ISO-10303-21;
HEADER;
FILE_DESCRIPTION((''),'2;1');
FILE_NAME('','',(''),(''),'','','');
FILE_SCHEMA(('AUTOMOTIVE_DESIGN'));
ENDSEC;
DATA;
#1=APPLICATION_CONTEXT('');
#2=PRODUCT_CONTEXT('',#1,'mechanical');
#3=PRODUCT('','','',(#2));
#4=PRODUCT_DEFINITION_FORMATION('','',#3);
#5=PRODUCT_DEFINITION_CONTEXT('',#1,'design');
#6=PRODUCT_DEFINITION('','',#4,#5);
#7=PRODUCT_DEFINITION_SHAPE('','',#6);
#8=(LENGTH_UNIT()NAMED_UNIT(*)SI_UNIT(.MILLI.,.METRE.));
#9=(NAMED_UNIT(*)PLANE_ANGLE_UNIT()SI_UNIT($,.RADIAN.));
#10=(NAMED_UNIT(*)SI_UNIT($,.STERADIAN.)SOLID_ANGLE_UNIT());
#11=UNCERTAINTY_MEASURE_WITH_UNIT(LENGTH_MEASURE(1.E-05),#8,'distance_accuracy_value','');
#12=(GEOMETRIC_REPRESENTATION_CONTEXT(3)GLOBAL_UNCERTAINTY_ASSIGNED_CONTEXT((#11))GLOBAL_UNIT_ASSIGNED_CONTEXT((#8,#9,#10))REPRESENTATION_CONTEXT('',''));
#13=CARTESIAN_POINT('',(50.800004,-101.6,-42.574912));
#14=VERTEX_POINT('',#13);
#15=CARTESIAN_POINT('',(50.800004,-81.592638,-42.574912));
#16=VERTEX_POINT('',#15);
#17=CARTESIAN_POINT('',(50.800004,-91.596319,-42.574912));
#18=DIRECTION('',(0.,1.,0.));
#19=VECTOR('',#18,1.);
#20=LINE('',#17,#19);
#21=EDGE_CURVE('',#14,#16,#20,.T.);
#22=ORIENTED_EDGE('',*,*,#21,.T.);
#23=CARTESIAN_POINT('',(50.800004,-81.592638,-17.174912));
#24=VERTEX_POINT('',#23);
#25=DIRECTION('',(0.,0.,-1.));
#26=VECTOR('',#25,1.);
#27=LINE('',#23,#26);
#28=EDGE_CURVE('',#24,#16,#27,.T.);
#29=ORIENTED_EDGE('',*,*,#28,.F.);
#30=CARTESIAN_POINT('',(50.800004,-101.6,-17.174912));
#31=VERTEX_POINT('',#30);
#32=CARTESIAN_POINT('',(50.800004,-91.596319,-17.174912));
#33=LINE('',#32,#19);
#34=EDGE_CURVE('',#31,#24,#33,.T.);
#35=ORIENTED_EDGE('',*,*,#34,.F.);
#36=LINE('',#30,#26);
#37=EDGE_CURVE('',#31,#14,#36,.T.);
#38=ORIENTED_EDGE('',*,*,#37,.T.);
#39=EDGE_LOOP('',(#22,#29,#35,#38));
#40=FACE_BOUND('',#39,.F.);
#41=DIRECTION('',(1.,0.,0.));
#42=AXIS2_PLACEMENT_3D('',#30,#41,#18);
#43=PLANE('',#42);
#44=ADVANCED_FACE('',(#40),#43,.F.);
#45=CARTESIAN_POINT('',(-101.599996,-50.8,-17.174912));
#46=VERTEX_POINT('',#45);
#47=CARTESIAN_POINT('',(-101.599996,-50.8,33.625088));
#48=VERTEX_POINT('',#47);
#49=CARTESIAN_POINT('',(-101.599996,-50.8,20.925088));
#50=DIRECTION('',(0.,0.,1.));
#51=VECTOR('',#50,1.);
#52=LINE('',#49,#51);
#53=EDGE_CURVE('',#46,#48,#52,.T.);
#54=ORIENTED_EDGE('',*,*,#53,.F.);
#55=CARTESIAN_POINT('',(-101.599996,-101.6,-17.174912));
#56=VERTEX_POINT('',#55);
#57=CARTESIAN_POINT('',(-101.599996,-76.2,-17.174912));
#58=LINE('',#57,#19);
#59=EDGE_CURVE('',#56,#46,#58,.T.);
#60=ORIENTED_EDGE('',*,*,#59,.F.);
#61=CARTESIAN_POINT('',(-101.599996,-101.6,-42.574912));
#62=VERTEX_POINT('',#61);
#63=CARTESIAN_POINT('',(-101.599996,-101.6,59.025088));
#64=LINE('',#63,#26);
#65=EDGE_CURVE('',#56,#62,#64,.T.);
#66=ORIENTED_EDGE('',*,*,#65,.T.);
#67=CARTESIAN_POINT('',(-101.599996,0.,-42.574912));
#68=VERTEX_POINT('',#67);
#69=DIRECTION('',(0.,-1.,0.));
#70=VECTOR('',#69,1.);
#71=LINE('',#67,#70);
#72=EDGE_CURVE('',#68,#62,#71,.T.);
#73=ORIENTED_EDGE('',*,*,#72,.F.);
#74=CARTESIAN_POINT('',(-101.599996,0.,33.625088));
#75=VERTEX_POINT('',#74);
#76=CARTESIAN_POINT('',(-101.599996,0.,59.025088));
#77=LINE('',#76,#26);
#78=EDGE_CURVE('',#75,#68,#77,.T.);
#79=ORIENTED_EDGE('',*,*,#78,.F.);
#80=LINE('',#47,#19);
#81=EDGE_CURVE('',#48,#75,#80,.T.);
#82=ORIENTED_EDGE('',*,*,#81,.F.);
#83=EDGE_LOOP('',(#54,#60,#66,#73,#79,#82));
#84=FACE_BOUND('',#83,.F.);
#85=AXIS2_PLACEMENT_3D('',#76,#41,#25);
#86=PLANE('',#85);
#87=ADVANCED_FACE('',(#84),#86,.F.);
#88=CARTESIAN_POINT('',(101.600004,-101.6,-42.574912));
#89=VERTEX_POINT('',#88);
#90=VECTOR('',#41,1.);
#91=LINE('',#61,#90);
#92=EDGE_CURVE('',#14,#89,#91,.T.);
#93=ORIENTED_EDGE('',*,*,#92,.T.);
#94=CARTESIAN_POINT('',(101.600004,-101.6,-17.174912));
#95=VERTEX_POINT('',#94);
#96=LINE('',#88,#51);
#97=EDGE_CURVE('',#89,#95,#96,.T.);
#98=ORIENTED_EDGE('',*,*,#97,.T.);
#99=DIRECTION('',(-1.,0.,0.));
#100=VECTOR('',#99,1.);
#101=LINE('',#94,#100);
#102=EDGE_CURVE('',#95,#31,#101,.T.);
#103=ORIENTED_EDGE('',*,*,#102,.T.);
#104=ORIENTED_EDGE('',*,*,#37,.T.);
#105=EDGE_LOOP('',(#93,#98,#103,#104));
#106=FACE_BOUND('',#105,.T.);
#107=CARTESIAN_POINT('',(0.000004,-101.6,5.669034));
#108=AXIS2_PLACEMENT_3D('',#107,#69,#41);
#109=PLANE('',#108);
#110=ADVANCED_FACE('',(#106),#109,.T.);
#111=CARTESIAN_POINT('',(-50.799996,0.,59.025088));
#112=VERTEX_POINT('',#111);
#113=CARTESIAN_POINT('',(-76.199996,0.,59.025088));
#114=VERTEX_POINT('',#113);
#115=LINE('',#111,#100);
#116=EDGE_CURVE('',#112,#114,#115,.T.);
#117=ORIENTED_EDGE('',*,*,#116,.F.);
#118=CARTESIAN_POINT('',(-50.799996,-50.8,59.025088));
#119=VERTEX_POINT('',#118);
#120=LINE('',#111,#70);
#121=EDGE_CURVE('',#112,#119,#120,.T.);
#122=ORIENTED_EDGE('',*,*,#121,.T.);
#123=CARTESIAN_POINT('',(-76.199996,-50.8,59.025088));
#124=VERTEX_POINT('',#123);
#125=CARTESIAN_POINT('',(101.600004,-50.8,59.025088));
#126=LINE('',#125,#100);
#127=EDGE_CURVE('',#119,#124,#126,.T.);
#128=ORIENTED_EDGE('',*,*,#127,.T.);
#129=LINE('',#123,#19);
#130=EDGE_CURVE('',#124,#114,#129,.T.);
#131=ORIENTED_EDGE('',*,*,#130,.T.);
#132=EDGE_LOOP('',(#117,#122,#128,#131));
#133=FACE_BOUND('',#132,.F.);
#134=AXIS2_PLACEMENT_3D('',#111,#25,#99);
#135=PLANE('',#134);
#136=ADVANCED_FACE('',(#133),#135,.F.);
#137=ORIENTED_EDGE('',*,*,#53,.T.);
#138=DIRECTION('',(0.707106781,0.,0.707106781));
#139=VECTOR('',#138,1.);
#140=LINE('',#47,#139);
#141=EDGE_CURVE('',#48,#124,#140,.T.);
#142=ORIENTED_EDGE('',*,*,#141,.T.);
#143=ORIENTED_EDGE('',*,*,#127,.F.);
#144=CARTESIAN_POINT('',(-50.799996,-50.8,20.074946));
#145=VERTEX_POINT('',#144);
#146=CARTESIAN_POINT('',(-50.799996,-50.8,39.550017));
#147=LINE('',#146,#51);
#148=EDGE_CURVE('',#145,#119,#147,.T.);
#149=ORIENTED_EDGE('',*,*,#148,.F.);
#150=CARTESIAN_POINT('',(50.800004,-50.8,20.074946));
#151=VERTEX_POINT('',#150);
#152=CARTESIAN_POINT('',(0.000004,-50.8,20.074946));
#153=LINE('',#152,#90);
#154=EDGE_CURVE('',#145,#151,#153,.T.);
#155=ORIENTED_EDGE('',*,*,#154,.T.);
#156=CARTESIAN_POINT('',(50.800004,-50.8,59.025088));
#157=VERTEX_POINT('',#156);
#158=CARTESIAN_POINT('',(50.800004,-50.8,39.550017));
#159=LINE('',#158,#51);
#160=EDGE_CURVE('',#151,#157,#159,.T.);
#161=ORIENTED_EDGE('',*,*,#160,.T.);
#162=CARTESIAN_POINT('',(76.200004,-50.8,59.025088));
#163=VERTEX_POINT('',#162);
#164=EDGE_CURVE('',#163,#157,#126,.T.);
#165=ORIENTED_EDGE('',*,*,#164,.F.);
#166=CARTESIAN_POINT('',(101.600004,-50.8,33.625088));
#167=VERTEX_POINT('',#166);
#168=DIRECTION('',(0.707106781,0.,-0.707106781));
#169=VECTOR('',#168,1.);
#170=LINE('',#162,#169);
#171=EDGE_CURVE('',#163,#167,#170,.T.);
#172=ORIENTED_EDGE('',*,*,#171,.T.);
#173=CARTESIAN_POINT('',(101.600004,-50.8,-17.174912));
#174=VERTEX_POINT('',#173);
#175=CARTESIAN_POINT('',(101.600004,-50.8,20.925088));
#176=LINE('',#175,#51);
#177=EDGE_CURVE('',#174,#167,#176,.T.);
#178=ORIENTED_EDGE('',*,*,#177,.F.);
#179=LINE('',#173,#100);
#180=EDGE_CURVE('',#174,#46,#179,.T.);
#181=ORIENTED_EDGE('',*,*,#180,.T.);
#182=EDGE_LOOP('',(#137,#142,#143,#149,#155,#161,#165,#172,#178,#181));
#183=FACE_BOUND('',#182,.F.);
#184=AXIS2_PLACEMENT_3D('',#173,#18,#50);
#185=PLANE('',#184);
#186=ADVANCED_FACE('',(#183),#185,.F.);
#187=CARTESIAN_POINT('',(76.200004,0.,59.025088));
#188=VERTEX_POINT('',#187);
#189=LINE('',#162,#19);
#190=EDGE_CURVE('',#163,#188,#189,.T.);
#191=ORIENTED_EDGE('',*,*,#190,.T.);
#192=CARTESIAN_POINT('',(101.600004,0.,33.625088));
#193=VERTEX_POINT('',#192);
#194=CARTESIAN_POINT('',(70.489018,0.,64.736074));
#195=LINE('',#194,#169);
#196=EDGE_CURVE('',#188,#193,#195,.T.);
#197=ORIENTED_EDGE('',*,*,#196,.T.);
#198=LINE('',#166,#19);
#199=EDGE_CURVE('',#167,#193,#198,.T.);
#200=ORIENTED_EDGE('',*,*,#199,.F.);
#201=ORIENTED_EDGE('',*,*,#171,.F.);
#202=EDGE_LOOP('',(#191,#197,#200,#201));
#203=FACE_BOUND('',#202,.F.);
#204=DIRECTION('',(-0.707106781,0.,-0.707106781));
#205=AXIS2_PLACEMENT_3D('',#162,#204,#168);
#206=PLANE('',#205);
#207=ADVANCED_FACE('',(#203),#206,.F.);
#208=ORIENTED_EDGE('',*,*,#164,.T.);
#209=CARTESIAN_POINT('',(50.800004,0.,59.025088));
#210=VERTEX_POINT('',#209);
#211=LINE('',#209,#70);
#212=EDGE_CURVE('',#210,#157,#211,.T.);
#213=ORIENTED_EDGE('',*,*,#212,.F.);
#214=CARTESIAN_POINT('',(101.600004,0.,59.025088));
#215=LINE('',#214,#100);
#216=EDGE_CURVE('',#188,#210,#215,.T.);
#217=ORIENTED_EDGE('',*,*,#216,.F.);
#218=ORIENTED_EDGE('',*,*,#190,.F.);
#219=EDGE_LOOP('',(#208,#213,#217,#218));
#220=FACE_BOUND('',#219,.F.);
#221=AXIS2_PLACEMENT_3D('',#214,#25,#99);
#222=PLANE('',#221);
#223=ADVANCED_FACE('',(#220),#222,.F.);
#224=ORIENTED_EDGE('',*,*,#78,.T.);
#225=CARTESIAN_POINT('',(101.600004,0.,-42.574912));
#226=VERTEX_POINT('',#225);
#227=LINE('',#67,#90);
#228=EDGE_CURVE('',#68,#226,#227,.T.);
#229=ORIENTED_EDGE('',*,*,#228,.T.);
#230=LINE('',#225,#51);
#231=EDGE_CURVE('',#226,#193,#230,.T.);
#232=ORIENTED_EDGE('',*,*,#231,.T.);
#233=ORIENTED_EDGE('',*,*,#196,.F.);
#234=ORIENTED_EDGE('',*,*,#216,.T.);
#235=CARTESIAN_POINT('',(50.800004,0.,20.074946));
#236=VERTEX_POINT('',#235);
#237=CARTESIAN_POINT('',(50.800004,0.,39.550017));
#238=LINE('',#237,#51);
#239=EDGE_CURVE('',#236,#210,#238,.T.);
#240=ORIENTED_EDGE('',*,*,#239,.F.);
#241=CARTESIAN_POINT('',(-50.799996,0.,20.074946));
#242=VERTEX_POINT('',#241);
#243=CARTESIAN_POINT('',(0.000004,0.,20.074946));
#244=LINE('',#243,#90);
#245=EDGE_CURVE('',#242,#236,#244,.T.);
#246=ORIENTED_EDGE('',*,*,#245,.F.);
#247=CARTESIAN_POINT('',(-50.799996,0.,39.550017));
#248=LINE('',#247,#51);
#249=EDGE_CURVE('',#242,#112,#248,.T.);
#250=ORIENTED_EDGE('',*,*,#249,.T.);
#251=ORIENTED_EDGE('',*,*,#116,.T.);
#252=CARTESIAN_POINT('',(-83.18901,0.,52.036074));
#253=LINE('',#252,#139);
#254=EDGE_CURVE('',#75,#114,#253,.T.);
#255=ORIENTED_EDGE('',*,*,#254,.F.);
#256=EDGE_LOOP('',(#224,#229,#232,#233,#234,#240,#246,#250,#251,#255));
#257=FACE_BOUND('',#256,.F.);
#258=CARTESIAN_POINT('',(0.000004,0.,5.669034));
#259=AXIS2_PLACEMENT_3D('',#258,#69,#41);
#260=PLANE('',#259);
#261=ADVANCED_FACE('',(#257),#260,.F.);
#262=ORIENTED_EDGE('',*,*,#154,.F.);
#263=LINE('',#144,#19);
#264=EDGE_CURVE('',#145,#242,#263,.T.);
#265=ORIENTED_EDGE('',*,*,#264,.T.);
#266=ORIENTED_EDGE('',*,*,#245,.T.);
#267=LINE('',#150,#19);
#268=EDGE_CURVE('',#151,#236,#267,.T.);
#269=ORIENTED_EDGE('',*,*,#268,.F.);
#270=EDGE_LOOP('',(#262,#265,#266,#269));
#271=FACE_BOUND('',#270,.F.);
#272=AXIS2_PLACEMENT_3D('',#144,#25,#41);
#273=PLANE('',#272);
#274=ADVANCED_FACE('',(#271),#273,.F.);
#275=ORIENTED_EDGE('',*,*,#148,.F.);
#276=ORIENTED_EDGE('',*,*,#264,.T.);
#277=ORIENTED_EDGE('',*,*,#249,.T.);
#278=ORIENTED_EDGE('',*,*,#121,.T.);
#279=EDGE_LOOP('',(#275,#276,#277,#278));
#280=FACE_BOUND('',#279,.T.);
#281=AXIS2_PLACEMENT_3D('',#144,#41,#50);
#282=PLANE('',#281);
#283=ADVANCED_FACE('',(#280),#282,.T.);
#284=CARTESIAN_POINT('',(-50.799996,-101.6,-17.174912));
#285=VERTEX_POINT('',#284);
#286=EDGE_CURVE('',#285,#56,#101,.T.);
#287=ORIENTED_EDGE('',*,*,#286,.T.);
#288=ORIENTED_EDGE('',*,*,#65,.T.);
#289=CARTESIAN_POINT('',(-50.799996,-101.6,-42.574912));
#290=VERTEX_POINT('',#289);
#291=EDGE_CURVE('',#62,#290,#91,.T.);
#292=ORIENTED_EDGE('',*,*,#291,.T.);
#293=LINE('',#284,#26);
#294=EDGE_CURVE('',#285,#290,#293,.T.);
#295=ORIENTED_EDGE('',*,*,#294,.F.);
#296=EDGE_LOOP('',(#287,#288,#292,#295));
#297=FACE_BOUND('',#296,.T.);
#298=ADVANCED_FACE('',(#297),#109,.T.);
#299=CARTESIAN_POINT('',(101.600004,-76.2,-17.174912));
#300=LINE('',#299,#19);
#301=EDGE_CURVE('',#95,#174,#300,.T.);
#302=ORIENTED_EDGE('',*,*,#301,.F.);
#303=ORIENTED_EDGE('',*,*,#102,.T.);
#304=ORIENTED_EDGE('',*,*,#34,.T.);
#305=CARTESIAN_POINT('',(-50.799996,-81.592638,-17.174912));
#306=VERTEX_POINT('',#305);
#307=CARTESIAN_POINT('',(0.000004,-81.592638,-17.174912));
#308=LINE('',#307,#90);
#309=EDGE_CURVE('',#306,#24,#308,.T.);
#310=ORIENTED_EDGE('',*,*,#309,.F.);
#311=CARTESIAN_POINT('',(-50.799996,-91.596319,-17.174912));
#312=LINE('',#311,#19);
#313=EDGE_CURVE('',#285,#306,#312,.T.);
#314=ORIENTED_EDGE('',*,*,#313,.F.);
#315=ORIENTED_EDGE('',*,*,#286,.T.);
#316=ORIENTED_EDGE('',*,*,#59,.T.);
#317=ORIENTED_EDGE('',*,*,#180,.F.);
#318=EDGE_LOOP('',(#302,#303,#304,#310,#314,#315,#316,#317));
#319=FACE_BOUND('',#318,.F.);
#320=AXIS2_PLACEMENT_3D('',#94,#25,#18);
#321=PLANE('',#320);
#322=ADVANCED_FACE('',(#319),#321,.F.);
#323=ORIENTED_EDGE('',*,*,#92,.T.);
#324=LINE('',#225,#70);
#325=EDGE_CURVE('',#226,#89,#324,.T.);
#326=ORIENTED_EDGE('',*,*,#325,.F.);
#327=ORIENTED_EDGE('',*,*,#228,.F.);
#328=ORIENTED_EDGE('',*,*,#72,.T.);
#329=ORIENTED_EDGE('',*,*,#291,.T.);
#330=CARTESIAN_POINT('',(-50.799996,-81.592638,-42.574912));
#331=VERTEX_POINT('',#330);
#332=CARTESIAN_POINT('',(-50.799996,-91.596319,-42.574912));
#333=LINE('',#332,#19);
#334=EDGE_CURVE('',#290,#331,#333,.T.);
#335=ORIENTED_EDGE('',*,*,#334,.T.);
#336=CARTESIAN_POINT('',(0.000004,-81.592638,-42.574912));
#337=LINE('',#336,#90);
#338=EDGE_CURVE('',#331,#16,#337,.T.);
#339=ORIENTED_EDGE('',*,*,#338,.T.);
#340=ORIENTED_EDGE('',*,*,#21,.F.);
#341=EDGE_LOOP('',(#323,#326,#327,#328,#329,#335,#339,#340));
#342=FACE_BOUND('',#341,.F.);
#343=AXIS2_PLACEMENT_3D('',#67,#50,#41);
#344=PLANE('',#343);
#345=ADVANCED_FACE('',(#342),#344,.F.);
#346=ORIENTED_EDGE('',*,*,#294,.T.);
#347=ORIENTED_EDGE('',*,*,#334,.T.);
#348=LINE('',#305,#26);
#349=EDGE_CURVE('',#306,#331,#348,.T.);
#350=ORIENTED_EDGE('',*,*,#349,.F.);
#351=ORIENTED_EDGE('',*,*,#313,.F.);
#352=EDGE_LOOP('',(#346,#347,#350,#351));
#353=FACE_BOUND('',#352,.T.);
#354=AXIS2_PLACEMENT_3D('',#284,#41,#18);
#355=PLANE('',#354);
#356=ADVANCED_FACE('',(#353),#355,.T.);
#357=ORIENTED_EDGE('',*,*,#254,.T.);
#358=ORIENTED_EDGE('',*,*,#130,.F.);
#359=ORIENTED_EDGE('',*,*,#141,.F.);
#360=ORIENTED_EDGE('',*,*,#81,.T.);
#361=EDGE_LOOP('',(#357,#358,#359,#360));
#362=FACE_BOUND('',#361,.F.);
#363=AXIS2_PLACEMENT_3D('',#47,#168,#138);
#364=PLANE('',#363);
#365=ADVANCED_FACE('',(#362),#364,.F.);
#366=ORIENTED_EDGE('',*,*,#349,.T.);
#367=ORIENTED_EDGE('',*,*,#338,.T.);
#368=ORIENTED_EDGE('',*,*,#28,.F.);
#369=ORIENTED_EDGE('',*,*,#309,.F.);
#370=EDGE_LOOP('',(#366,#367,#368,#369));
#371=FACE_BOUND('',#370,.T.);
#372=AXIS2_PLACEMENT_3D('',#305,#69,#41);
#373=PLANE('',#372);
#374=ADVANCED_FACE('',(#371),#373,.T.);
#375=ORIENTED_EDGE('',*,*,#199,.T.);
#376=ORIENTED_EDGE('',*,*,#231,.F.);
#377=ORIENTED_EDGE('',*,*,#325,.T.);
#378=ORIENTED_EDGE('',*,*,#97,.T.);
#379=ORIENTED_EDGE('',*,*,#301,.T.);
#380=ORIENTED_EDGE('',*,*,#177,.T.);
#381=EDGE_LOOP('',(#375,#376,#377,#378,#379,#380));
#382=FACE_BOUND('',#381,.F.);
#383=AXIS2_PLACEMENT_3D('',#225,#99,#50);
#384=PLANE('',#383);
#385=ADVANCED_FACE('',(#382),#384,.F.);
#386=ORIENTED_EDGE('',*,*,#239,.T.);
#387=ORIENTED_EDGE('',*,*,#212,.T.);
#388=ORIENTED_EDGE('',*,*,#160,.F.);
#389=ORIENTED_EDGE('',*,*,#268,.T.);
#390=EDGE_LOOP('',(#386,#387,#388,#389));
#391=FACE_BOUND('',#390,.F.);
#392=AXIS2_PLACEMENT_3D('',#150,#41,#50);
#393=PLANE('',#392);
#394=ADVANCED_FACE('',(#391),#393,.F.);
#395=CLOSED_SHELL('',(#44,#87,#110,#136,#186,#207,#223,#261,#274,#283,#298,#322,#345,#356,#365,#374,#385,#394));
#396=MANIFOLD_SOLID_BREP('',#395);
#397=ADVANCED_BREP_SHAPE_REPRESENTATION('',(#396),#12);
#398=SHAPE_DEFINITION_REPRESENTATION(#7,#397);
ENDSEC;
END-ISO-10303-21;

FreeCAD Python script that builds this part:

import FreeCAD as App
import Part
import Sketcher
from FreeCAD import Vector
Q = App.Units.Quantity


def add_polygon(sketch, points):
    """Adds a closed chain of lines whose ends are joined by coincident constraints."""
    first, n = sketch.GeometryCount, len(points)
    for a, b in zip(points, points[1:] + points[:1]):
        sketch.addGeometry(Part.LineSegment(App.Vector(*a, 0), App.Vector(*b, 0)), False)
    for i in range(n):
        sketch.addConstraint(Sketcher.Constraint("Coincident", first + i, 2, first + (i + 1) % n, 1))

doc = App.newDocument("Part")
body = doc.addObject("PartDesign::Body", "Body")

sketch1 = body.newObject("Sketcher::SketchObject", "Sketch")
sketch1.AttachmentSupport = (doc.getObject("XZ_Plane"), [""])
sketch1.MapMode = "FlatFace"
sketch1.addGeometry(Part.LineSegment(Vector(-50.799996, 59.025088, 0), Vector(-50.799996, 59.025087, 0)), False)
sketch1.addGeometry(Part.LineSegment(Vector(-50.799996, 59.025088, 0), Vector(-101.599996, 59.025088, 0)), False)
sketch1.addGeometry(Part.LineSegment(Vector(-101.599996, 59.025088, 0), Vector(-101.599996, -42.574912, 0)), False)
sketch1.addGeometry(Part.LineSegment(Vector(-101.599996, -42.574912, 0), Vector(101.600004, -42.574912, 0)), False)
sketch1.addGeometry(Part.LineSegment(Vector(101.600004, -42.574912, 0), Vector(101.600004, 59.025088, 0)), False)
sketch1.addGeometry(Part.LineSegment(Vector(101.600004, 59.025088, 0), Vector(50.800004, 59.025088, 0)), False)
sketch1.addGeometry(Part.LineSegment(Vector(50.800004, 59.025087, 0), Vector(50.800004, 59.025088, 0)), False)
sketch1.addGeometry(Part.LineSegment(Vector(50.800004, 59.025087, 0), Vector(-50.799996, 59.025087, 0)), False)
sketch1.addConstraint([
    Sketcher.Constraint("Coincident", 0, 1, 1, 1),
    Sketcher.Constraint("Coincident", 1, 2, 2, 1),
    Sketcher.Constraint("Coincident", 2, 2, 3, 1),
    Sketcher.Constraint("Coincident", 3, 2, 4, 1),
    Sketcher.Constraint("Coincident", 4, 2, 5, 1),
    Sketcher.Constraint("Coincident", 5, 2, 6, 1),
    Sketcher.Constraint("Coincident", 6, 2, 7, 1),
    Sketcher.Constraint("Coincident", 7, 2, 0, 2),
    Sketcher.Constraint("Horizontal", 0),
    Sketcher.Constraint("Horizontal", 1),
    Sketcher.Constraint("Vertical", 2),
    Sketcher.Constraint("Horizontal", 3),
    Sketcher.Constraint("Vertical", 4),
    Sketcher.Constraint("Horizontal", 5),
    Sketcher.Constraint("Horizontal", 6),
    Sketcher.Constraint("Horizontal", 7),
    Sketcher.Constraint("Equal", 1, 5),
    Sketcher.Constraint("Equal", 7, 2),
    Sketcher.Constraint("DistanceX", 1, 2, 1, 1, Q("2 in")),
    Sketcher.Constraint("DistanceX", 3, 1, 3, 2, Q("8 in")),
    Sketcher.Constraint("DistanceX", 7, 2, 7, 1, Q("4 in")),
    Sketcher.Constraint("DistanceX", 0, 1, -1, 1, Q("1.9999998 in")),
    Sketcher.Constraint("DistanceX", -1, 1, 6, 2, Q("2.0000002 in")),
    Sketcher.Constraint("DistanceY", 2, 2, -1, 1, 42.574912),
])
pad1 = body.newObject("PartDesign::Pad", "Pad")
pad1.Profile = sketch1
pad1.Length = Q("4 in")

sketch2 = body.newObject("Sketcher::SketchObject", "Sketch001")
sketch2.AttachmentSupport = (doc.getObject("YZ_Plane"), [""])
sketch2.MapMode = "FlatFace"
sketch2.AttachmentOffset = App.Placement(Vector(0, 0, 4.0000002 * 25.4), App.Rotation())
add_polygon(sketch2, [(-102, 59), (-102, -17), (-51, -17), (-51, 59)])
sketch2.addConstraint([
    Sketcher.Constraint("Vertical", 0),
    Sketcher.Constraint("Horizontal", 1),
    Sketcher.Constraint("Vertical", 2),
    Sketcher.Constraint("Horizontal", 3),
    Sketcher.Constraint("DistanceX", 1, 1, 1, 2, Q("2 in")),
    Sketcher.Constraint("DistanceY", 0, 2, 0, 1, Q("3 in")),
    Sketcher.Constraint("DistanceX", 0, 2, -1, 1, Q("4 in")),
    Sketcher.Constraint("DistanceY", 0, 2, -1, 1, 17.174912),
])
pocket1 = body.newObject("PartDesign::Pocket", "Pocket")
pocket1.Profile = sketch2
pocket1.Length = Q("8 in")

sketch3 = body.newObject("Sketcher::SketchObject", "Sketch002")
sketch3.AttachmentSupport = (doc.getObject("XY_Plane"), [""])
sketch3.MapMode = "FlatFace"
sketch3.AttachmentOffset = App.Placement(Vector(0, 0, -17.174912), App.Rotation())
add_polygon(sketch3, [(-51, -82), (-51, -102), (51, -102), (51, -82)])
sketch3.addConstraint([
    Sketcher.Constraint("Vertical", 0),
    Sketcher.Constraint("Horizontal", 1),
    Sketcher.Constraint("Vertical", 2),
    Sketcher.Constraint("Horizontal", 3),
    Sketcher.Constraint("DistanceX", 1, 1, 1, 2, Q("4 in")),
    Sketcher.Constraint("DistanceX", 0, 2, -1, 1, Q("1.9999998 in")),
    Sketcher.Constraint("DistanceY", 0, 2, -1, 1, Q("4 in")),
    Sketcher.Constraint("DistanceY", 0, 2, 0, 1, 20.007362),
])
pocket2 = body.newObject("PartDesign::Pocket", "Pocket001")
pocket2.Profile = sketch3
pocket2.Length = Q("1 in")

sketch4 = body.newObject("Sketcher::SketchObject", "Sketch003")
sketch4.AttachmentSupport = (doc.getObject("XZ_Plane"), [""])
sketch4.MapMode = "FlatFace"
sketch4.AttachmentOffset = App.Placement(Vector(0, 0, 2 * 25.4), App.Rotation())
add_polygon(sketch4, [(-51, 59), (-51, 20), (51, 20), (51, 59)])
sketch4.addConstraint([
    Sketcher.Constraint("Vertical", 0),
    Sketcher.Constraint("Horizontal", 1),
    Sketcher.Constraint("Vertical", 2),
    Sketcher.Constraint("Horizontal", 3),
    Sketcher.Constraint("DistanceX", 1, 1, 1, 2, Q("4 in")),
    Sketcher.Constraint("DistanceX", 0, 2, -1, 1, Q("1.9999998 in")),
    Sketcher.Constraint("DistanceY", 0, 2, 0, 1, 38.950141),
    Sketcher.Constraint("DistanceY", -1, 1, 0, 2, 20.074946),
])
pocket3 = body.newObject("PartDesign::Pocket", "Pocket002")
pocket3.Profile = sketch4
pocket3.Length = Q("2 in")

sketch5 = body.newObject("Sketcher::SketchObject", "Sketch004")
sketch5.AttachmentSupport = (doc.getObject("XZ_Plane"), [""])
sketch5.MapMode = "FlatFace"
sketch5.AttachmentOffset = App.Placement(Vector(0, 0, 2 * 25.4), App.Rotation())
add_polygon(sketch5, [(-76, 59), (-102, 59), (-102, 34)])
sketch5.addConstraint([
    Sketcher.Constraint("Horizontal", 0),
    Sketcher.Constraint("Vertical", 1),
    Sketcher.Constraint("Equal", 0, 1),
    Sketcher.Constraint("DistanceX", 0, 2, 0, 1, Q("1 in")),
    Sketcher.Constraint("DistanceX", 0, 2, -1, 1, Q("3.9999998 in")),
    Sketcher.Constraint("DistanceY", -1, 1, 0, 2, 59.025088),
])
pocket4 = body.newObject("PartDesign::Pocket", "Pocket003")
pocket4.Profile = sketch5
pocket4.Length = Q("4 in")

sketch6 = body.newObject("Sketcher::SketchObject", "Sketch005")
sketch6.AttachmentSupport = (doc.getObject("XZ_Plane"), [""])
sketch6.MapMode = "FlatFace"
sketch6.AttachmentOffset = App.Placement(Vector(0, 0, 2 * 25.4), App.Rotation())
add_polygon(sketch6, [(76, 59), (102, 34), (102, 59)])
sketch6.addConstraint([
    Sketcher.Constraint("Vertical", 1),
    Sketcher.Constraint("Horizontal", 2),
    Sketcher.Constraint("Equal", 2, 1),
    Sketcher.Constraint("DistanceX", 2, 2, 2, 1, Q("1 in")),
    Sketcher.Constraint("DistanceX", -1, 1, 0, 2, Q("4.0000002 in")),
    Sketcher.Constraint("DistanceY", -1, 1, 0, 2, 33.625088),
])
pocket5 = body.newObject("PartDesign::Pocket", "Pocket004")
pocket5.Profile = sketch6
pocket5.Length = Q("4 in")

doc.recompute()
